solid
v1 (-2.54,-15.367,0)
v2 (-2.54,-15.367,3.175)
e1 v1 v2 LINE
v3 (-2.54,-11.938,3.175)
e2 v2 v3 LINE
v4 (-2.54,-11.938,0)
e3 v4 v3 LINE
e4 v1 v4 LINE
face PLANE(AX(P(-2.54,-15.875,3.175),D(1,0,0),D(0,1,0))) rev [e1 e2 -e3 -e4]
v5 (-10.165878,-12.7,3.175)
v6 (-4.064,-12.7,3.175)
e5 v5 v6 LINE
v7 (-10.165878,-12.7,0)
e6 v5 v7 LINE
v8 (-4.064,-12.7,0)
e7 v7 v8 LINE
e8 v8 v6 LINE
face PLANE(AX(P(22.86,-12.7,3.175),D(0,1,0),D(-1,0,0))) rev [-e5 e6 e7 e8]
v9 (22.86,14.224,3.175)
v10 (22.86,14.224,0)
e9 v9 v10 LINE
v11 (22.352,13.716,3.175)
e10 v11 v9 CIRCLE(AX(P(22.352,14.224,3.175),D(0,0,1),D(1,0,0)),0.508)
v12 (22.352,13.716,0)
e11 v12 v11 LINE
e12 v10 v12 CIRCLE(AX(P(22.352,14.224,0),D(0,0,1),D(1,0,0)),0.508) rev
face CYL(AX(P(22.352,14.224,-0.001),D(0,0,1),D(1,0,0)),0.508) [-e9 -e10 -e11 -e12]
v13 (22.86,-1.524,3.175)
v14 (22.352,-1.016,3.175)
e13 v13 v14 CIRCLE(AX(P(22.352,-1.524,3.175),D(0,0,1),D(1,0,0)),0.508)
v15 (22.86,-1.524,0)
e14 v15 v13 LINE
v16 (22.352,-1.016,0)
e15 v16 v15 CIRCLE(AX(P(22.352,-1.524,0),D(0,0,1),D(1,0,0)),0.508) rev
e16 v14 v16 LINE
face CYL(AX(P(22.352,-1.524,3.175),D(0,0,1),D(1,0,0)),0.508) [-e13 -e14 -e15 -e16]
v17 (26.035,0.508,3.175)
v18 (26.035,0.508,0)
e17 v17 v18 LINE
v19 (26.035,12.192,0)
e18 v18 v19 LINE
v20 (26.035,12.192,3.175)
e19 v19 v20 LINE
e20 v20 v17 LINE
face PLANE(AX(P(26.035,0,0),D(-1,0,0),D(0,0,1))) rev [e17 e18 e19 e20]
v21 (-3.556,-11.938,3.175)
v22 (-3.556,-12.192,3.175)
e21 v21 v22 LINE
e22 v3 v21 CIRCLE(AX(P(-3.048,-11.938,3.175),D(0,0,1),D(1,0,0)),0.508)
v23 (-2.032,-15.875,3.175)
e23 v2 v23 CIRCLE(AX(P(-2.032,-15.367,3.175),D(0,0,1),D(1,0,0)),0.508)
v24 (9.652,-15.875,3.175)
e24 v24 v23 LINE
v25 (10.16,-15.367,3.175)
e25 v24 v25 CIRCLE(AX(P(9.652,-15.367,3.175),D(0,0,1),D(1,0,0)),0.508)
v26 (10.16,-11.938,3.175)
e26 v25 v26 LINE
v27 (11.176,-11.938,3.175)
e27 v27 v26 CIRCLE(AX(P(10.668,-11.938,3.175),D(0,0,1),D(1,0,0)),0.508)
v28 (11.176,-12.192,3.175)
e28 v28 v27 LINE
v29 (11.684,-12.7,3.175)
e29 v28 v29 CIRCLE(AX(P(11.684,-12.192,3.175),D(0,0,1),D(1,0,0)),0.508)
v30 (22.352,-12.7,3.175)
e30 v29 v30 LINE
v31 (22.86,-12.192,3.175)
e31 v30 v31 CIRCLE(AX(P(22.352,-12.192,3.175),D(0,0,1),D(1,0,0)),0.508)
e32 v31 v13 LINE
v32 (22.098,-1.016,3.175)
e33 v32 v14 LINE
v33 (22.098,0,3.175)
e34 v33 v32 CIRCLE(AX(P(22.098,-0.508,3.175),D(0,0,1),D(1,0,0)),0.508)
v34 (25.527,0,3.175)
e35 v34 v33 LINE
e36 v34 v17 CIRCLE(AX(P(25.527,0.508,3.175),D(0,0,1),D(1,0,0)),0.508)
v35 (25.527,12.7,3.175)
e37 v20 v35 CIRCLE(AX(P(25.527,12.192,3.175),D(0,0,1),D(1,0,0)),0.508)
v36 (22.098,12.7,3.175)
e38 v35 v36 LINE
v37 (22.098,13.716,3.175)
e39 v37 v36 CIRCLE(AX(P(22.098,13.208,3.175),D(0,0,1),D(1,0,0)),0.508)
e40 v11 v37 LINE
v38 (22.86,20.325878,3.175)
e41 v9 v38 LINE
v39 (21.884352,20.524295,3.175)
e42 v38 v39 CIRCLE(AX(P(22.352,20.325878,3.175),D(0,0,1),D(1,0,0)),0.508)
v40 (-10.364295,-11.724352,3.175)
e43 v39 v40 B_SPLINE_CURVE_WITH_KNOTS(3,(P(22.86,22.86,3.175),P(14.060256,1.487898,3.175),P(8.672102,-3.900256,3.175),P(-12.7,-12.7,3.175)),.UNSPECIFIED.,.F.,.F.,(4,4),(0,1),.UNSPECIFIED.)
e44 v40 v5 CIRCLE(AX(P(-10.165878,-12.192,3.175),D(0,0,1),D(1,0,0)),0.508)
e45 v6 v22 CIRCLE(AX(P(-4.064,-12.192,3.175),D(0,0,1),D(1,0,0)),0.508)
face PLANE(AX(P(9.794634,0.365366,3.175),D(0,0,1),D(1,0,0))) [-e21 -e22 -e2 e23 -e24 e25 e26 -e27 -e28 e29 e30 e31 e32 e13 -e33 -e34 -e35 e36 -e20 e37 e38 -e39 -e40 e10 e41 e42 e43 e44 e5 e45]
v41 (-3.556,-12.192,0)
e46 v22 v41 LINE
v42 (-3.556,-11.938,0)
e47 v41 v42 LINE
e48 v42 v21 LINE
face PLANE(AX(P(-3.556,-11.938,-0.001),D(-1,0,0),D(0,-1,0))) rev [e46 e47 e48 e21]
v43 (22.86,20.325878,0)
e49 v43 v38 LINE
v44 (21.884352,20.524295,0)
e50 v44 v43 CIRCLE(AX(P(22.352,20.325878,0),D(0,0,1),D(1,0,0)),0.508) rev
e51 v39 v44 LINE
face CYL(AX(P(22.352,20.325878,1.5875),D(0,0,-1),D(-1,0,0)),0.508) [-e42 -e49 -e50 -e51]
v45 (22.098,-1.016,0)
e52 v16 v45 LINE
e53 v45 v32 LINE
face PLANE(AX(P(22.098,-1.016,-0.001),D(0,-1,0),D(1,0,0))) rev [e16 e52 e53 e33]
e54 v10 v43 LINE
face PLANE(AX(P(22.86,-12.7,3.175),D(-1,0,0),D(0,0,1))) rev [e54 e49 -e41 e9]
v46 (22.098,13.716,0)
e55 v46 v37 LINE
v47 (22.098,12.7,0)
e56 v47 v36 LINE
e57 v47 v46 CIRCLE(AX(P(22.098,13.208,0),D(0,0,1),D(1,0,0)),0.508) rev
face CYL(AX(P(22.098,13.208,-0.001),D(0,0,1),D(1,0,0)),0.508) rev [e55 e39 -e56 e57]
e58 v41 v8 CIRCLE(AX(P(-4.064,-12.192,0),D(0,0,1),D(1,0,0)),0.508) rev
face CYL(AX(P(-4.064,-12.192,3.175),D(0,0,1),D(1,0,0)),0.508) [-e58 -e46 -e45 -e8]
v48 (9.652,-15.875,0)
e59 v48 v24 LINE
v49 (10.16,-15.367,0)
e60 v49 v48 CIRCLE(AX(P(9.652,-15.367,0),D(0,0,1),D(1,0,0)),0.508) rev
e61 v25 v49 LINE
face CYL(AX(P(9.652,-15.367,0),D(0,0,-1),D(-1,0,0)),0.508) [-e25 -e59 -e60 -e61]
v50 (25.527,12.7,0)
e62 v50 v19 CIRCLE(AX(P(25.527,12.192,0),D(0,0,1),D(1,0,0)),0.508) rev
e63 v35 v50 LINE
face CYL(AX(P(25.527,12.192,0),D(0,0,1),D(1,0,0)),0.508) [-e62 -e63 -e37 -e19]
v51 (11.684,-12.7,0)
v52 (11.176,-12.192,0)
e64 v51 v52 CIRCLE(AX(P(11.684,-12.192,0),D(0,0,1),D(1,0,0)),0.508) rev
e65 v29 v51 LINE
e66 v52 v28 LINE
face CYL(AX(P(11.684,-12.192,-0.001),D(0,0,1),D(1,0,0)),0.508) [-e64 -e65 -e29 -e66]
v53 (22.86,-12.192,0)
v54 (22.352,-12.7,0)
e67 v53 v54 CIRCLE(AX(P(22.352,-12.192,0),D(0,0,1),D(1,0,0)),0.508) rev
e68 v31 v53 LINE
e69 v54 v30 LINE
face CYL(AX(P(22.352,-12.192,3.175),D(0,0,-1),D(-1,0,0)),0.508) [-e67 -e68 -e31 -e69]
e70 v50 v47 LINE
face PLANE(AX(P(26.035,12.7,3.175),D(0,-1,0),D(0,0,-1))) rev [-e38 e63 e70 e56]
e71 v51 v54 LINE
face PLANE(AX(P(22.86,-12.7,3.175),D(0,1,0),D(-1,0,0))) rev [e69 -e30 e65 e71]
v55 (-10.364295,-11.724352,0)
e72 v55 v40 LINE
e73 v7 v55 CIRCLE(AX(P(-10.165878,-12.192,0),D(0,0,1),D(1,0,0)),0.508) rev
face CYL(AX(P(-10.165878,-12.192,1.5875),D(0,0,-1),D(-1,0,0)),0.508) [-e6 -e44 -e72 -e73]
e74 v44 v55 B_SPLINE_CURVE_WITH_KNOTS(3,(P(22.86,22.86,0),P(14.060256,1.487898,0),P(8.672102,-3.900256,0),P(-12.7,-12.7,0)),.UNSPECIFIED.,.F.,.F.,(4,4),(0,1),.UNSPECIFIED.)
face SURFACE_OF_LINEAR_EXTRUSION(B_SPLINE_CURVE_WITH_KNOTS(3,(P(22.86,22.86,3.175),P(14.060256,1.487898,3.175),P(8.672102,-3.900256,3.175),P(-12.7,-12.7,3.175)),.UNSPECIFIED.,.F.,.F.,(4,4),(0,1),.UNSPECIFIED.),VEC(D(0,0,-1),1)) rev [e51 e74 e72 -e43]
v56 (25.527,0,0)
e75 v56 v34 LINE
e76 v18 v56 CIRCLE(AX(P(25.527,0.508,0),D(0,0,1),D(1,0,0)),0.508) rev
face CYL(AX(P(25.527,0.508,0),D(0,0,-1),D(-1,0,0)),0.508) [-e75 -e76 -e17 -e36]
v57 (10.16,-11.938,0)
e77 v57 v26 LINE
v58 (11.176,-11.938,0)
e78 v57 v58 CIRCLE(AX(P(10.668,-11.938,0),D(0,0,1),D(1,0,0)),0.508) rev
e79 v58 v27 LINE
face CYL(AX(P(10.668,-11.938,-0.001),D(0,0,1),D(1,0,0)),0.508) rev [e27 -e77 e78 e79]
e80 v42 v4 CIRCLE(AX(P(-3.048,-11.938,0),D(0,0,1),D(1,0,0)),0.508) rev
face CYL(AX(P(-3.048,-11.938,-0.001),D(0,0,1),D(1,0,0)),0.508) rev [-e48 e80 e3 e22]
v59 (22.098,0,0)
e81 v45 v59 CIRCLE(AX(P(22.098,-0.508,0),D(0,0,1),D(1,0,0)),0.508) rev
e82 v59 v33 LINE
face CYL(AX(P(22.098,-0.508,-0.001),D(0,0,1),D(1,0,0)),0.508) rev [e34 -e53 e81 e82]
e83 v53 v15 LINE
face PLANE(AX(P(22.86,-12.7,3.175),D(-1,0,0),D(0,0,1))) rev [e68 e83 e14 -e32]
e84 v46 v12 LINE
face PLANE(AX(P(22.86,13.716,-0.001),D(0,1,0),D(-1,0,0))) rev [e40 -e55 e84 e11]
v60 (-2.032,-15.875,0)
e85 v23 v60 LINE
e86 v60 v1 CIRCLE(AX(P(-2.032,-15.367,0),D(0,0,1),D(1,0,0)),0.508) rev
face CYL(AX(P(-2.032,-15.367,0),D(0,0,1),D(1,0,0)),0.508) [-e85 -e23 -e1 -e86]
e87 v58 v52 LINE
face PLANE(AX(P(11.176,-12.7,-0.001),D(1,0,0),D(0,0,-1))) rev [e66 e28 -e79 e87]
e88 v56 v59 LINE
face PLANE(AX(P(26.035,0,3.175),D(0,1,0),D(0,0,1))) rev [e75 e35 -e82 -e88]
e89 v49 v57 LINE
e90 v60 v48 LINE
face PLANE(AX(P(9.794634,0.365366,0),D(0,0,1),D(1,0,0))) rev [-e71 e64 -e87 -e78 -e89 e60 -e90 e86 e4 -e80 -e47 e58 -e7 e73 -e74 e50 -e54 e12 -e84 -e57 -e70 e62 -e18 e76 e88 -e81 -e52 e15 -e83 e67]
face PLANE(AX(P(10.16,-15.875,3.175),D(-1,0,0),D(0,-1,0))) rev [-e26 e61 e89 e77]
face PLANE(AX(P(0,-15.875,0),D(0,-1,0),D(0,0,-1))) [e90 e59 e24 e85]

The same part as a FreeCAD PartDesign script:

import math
import FreeCAD as App
import Part
import Sketcher
Q = App.Units.Quantity


def edges_at(feature, points):
    """Names of the edges that pass closest to the given points."""
    edges = feature.Shape.Edges
    near = lambda p: min(range(len(edges)), key=lambda i: edges[i].distToShape(Part.Vertex(*p))[0])
    return sorted({f"Edge{near(p) + 1}" for p in points})


def add_polygon(sketch, points):
    """Adds a closed chain of lines whose ends are joined by coincident constraints."""
    first, n = sketch.GeometryCount, len(points)
    for a, b in zip(points, points[1:] + points[:1]):
        sketch.addGeometry(Part.LineSegment(App.Vector(*a, 0), App.Vector(*b, 0)), False)
    for i in range(n):
        sketch.addConstraint(Sketcher.Constraint("Coincident", first + i, 2, first + (i + 1) % n, 1))

doc = App.newDocument("Part")
body = doc.addObject("PartDesign::Body", "Body")

sketch1 = body.newObject("Sketcher::SketchObject", "Sketch")
sketch1.AttachmentSupport = (doc.getObject("XY_Plane"), [""])
sketch1.MapMode = "FlatFace"
sketch1.addGeometry([
    Part.LineSegment(App.Vector(-12.7, -12.7, 0), App.Vector(22.86, -12.7, 0)),
    Part.LineSegment(App.Vector(22.86, -12.7, 0), App.Vector(22.86, 22.86, 0)),
    Part.BSplineCurve([App.Vector(22.86, 22.86, 0), App.Vector(14.060256, 1.487898, 0), App.Vector(8.672102, -3.900256, 0), App.Vector(-12.7, -12.7, 0)], [4, 4], [0, 1], False, 3, [1, 1, 1, 1], False),
], False)
sketch1.addConstraint([
    Sketcher.Constraint("Block", 2),
    Sketcher.Constraint("Coincident", 0, 2, 1, 1),
    Sketcher.Constraint("Coincident", 1, 2, 2, 1),
    Sketcher.Constraint("Coincident", 2, 2, 0, 1),
    Sketcher.Constraint("Horizontal", 0),
    Sketcher.Constraint("Vertical", 1),
])
pad1 = body.newObject("PartDesign::Pad", "Pad")
pad1.Profile = sketch1
pad1.Length = Q("0.125 in")

sketch2 = body.newObject("Sketcher::SketchObject", "Sketch001")
sketch2.AttachmentSupport = (doc.getObject("XZ_Plane"), [""])
sketch2.MapMode = "FlatFace"
sketch2.AttachmentOffset = App.Placement(App.Vector(0, 0, 0.5 * 25.4), App.Rotation())
add_polygon(sketch2, [(-2.5, 3.2), (-2.5, 0), (10.2, 0), (10.2, 3.2)])
sketch2.addConstraint([
    Sketcher.Constraint("Vertical", 0),
    Sketcher.Constraint("Horizontal", 1),
    Sketcher.Constraint("Vertical", 2),
    Sketcher.Constraint("Horizontal", 3),
    Sketcher.Constraint("PointOnObject", 0, 2, -1),
    Sketcher.Constraint("DistanceX", 1, 1, 1, 2, Q("0.5 in")),
    Sketcher.Constraint("DistanceX", 0, 2, -1, 1, Q("0.1 in")),
    Sketcher.Constraint("DistanceY", 0, 2, 0, 1, Q("0.125 in")),
])
pad2 = body.newObject("PartDesign::Pad", "Pad001")
pad2.Profile = sketch2
pad2.Length = Q("0.125 in")

sketch3 = body.newObject("Sketcher::SketchObject", "Sketch002")
sketch3.AttachmentSupport = (doc.getObject("YZ_Plane"), [""])
sketch3.MapMode = "FlatFace"
sketch3.AttachmentOffset = App.Placement(App.Vector(0, 0, 0.9 * 25.4), App.Rotation())
add_polygon(sketch3, [(12.7, 3.2), (0, 3.2), (0, 0), (12.7, 0)])
sketch3.addConstraint([
    Sketcher.Constraint("Horizontal", 0),
    Sketcher.Constraint("Vertical", 1),
    Sketcher.Constraint("Horizontal", 2),
    Sketcher.Constraint("Vertical", 3),
    Sketcher.Constraint("Coincident", 1, 2, -1, 1),
    Sketcher.Constraint("DistanceX", 0, 2, 0, 1, Q("0.5 in")),
    Sketcher.Constraint("DistanceY", 1, 2, 1, 1, Q("0.125 in")),
])
pad3 = body.newObject("PartDesign::Pad", "Pad002")
pad3.Profile = sketch3
pad3.Length = Q("0.125 in")

sketch4 = body.newObject("Sketcher::SketchObject", "Sketch003")
sketch4.AttachmentSupport = (doc.getObject("XY_Plane"), [""])
sketch4.MapMode = "FlatFace"
sketch4.AttachmentOffset = App.Placement(App.Vector(0, 0, 0.125 * 25.4), App.Rotation())
sketch4.addGeometry([
    Part.LineSegment(App.Vector(-3.6, -11.9, 0), App.Vector(-3.6, -12.7, 0)),
    Part.LineSegment(App.Vector(-3.6, -12.7, 0), App.Vector(-2.5, -12.7, 0)),
    Part.LineSegment(App.Vector(-2.5, -12.7, 0), App.Vector(-2.5, -11.9, 0)),
    Part.ArcOfCircle(Part.Circle(App.Vector(-3, -11.9, 0), App.Vector(0, 0, 1), 0.5), math.radians(0), math.radians(180)),
], False)
sketch4.addConstraint([
    Sketcher.Constraint("Coincident", 0, 2, 1, 1),
    Sketcher.Constraint("Coincident", 1, 2, 2, 1),
    Sketcher.Constraint("Tangent", 2, 2, 3, 1),
    Sketcher.Constraint("Tangent", 3, 2, 0, 1),
    Sketcher.Constraint("Vertical", 0),
    Sketcher.Constraint("Horizontal", 1),
    Sketcher.Constraint("Vertical", 2),
    Sketcher.Constraint("Radius", 3, Q("0.02 in")),
    Sketcher.Constraint("DistanceY", 0, 2, 0, 1, Q("0.03 in")),
    Sketcher.Constraint("DistanceY", 0, 2, -1, 1, Q("0.5 in")),
    Sketcher.Constraint("DistanceX", 1, 2, -1, 1, Q("0.1 in")),
])
pocket1 = body.newObject("PartDesign::Pocket", "Pocket")
pocket1.Profile = sketch4
pocket1.Type = "UpToFirst"

sketch5 = body.newObject("Sketcher::SketchObject", "Sketch004")
sketch5.AttachmentSupport = (doc.getObject("XY_Plane"), [""])
sketch5.MapMode = "FlatFace"
sketch5.AttachmentOffset = App.Placement(App.Vector(0, 0, 0.125 * 25.4), App.Rotation())
sketch5.addGeometry([
    Part.LineSegment(App.Vector(10.2, -11.9, 0), App.Vector(10.2, -12.7, 0)),
    Part.LineSegment(App.Vector(10.2, -12.7, 0), App.Vector(11.2, -12.7, 0)),
    Part.LineSegment(App.Vector(11.2, -12.7, 0), App.Vector(11.2, -11.9, 0)),
    Part.ArcOfCircle(Part.Circle(App.Vector(10.7, -11.9, 0), App.Vector(0, 0, 1), 0.5), math.radians(0), math.radians(180)),
], False)
sketch5.addConstraint([
    Sketcher.Constraint("Coincident", 0, 2, 1, 1),
    Sketcher.Constraint("Coincident", 1, 2, 2, 1),
    Sketcher.Constraint("Tangent", 2, 2, 3, 1),
    Sketcher.Constraint("Tangent", 3, 2, 0, 1),
    Sketcher.Constraint("Vertical", 0),
    Sketcher.Constraint("Horizontal", 1),
    Sketcher.Constraint("Vertical", 2),
    Sketcher.Constraint("Radius", 3, Q("0.02 in")),
    Sketcher.Constraint("DistanceY", 0, 2, 0, 1, Q("0.03 in")),
    Sketcher.Constraint("DistanceX", -1, 1, 0, 2, Q("0.4 in")),
    Sketcher.Constraint("DistanceY", 0, 2, -1, 1, Q("0.5 in")),
])
pocket2 = body.newObject("PartDesign::Pocket", "Pocket001")
pocket2.Profile = sketch5
pocket2.Type = "UpToFirst"

sketch6 = body.newObject("Sketcher::SketchObject", "Sketch005")
sketch6.AttachmentSupport = (doc.getObject("XY_Plane"), [""])
sketch6.MapMode = "FlatFace"
sketch6.AttachmentOffset = App.Placement(App.Vector(0, 0, 0.125 * 25.4), App.Rotation())
sketch6.addGeometry([
    Part.LineSegment(App.Vector(22.1, -1, 0), App.Vector(22.9, -1, 0)),
    Part.LineSegment(App.Vector(22.9, -1, 0), App.Vector(22.9, 0, 0)),
    Part.LineSegment(App.Vector(22.9, 0, 0), App.Vector(22.1, 0, 0)),
    Part.ArcOfCircle(Part.Circle(App.Vector(22.1, -0.5, 0), App.Vector(0, 0, 1), 0.5), math.radians(90), math.radians(270)),
], False)
sketch6.addConstraint([
    Sketcher.Constraint("Coincident", 0, 2, 1, 1),
    Sketcher.Constraint("Coincident", 1, 2, 2, 1),
    Sketcher.Constraint("Tangent", 2, 2, 3, 1),
    Sketcher.Constraint("Tangent", 3, 2, 0, 1),
    Sketcher.Constraint("Horizontal", 0),
    Sketcher.Constraint("Vertical", 1),
    Sketcher.Constraint("Horizontal", 2),
    Sketcher.Constraint("PointOnObject", 1, 2, -1),
    Sketcher.Constraint("Radius", 3, Q("0.02 in")),
    Sketcher.Constraint("DistanceX", 0, 1, 0, 2, Q("0.03 in")),
    Sketcher.Constraint("DistanceX", -1, 1, 0, 2, Q("0.9 in")),
])
pocket3 = body.newObject("PartDesign::Pocket", "Pocket002")
pocket3.Profile = sketch6
pocket3.Type = "UpToFirst"

sketch7 = body.newObject("Sketcher::SketchObject", "Sketch006")
sketch7.AttachmentSupport = (doc.getObject("XY_Plane"), [""])
sketch7.MapMode = "FlatFace"
sketch7.AttachmentOffset = App.Placement(App.Vector(0, 0, 0.125 * 25.4), App.Rotation())
sketch7.addGeometry([
    Part.LineSegment(App.Vector(22.1, 12.7, 0), App.Vector(22.9, 12.7, 0)),
    Part.LineSegment(App.Vector(22.9, 12.7, 0), App.Vector(22.9, 13.7, 0)),
    Part.LineSegment(App.Vector(22.9, 13.7, 0), App.Vector(22.1, 13.7, 0)),
    Part.ArcOfCircle(Part.Circle(App.Vector(22.1, 13.2, 0), App.Vector(0, 0, 1), 0.5), math.radians(90), math.radians(270)),
], False)
sketch7.addConstraint([
    Sketcher.Constraint("Coincident", 0, 2, 1, 1),
    Sketcher.Constraint("Coincident", 1, 2, 2, 1),
    Sketcher.Constraint("Tangent", 2, 2, 3, 1),
    Sketcher.Constraint("Tangent", 3, 2, 0, 1),
    Sketcher.Constraint("Horizontal", 0),
    Sketcher.Constraint("Vertical", 1),
    Sketcher.Constraint("Horizontal", 2),
    Sketcher.Constraint("Radius", 3, Q("0.02 in")),
    Sketcher.Constraint("DistanceX", 0, 1, 0, 2, Q("0.03 in")),
    Sketcher.Constraint("DistanceX", -1, 1, 0, 2, Q("0.9 in")),
    Sketcher.Constraint("DistanceY", -1, 1, 0, 2, Q("0.5 in")),
])
pocket4 = body.newObject("PartDesign::Pocket", "Pocket003")
pocket4.Profile = sketch7
pocket4.Type = "UpToFirst"
doc.recompute()

fillet = body.newObject("PartDesign::Fillet", "Fillet")
fillet.Base = (pocket4, edges_at(pocket4, [
    (22.86, 13.716, 1.587),
    (26.035, 12.7, 1.587),
    (26.035, 0, 1.587),
    (22.86, -1.016, 1.587),
    (22.86, -12.7, 1.587),
    (11.176, -12.7, 1.587),
    (10.16, -15.875, 1.587),
    (-2.54, -15.875, 1.587),
    (-3.556, -12.7, 1.587),
    (-12.7, -12.7, 1.587),
    (22.86, 22.86, 1.587),
]))
fillet.Radius = Q("0.02 in")

doc.recompute()
